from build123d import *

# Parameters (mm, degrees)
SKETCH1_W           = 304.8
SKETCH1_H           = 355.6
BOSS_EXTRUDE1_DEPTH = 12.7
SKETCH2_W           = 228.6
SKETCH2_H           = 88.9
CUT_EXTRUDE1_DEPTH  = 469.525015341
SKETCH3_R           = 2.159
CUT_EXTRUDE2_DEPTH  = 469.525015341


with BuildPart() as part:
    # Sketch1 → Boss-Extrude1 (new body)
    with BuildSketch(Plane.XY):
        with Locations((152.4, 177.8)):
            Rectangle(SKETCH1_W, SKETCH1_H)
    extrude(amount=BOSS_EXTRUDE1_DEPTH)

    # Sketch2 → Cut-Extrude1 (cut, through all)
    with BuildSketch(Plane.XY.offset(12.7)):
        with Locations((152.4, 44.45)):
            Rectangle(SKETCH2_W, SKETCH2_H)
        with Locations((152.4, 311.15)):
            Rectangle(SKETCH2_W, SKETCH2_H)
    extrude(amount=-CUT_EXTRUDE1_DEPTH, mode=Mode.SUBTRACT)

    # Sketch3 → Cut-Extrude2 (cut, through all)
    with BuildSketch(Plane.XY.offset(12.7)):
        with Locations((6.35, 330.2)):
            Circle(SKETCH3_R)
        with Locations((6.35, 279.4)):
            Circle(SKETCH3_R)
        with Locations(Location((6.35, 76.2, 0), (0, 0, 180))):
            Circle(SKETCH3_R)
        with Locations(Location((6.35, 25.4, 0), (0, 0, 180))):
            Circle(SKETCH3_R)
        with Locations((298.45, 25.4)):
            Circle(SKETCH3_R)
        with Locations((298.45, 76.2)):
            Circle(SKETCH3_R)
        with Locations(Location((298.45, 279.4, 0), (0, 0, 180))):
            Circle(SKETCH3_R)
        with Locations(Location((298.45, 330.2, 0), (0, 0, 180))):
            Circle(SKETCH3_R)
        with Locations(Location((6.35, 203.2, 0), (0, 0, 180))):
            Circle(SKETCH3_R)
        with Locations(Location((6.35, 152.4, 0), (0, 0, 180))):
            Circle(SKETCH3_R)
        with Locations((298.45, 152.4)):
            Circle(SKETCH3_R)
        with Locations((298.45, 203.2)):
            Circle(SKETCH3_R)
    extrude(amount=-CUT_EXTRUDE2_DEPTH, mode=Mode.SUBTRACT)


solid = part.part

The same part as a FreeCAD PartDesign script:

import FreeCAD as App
import Part
import Sketcher

V = App.Vector
Q = App.Units.Quantity

doc = App.newDocument("Part")
body = doc.addObject("PartDesign::Body", "Body")

# Sketch on XY plane
sketch1 = body.newObject("Sketcher::SketchObject", "Sketch")
sketch1.AttachmentSupport = (doc.getObject("XY_Plane"), [""])
sketch1.MapMode = "FlatFace"
sketch1.addGeometry([
    Part.LineSegment(V(0, 356, 0), V(0, 0, 0)),
    Part.LineSegment(V(0, 0, 0), V(305, 0, 0)),
    Part.LineSegment(V(305, 0, 0), V(305, 356, 0)),
    Part.LineSegment(V(305, 356, 0), V(0, 356, 0)),
], False)
sketch1.addConstraint([
    Sketcher.Constraint("Coincident", 0, 2, 1, 1),
    Sketcher.Constraint("Coincident", 1, 2, 2, 1),
    Sketcher.Constraint("Coincident", 2, 2, 3, 1),
    Sketcher.Constraint("Coincident", 3, 2, 0, 1),
    Sketcher.Constraint("Vertical", 0),
    Sketcher.Constraint("Horizontal", 1),
    Sketcher.Constraint("Vertical", 2),
    Sketcher.Constraint("Horizontal", 3),
    Sketcher.Constraint("Coincident", 0, 2, -1, 1),
    Sketcher.Constraint("DistanceX", 1, 1, 1, 2, Q("12 in")),
    Sketcher.Constraint("DistanceY", 0, 2, 0, 1, Q("14 in")),
])
pad1 = body.newObject("PartDesign::Pad", "Pad")
pad1.Profile = sketch1
pad1.Length = Q("0.5 in")

# Sketch on XY plane
sketch2 = body.newObject("Sketcher::SketchObject", "Sketch001")
sketch2.AttachmentSupport = (doc.getObject("XY_Plane"), [""])
sketch2.MapMode = "FlatFace"
sketch2.AttachmentOffset = App.Placement(V(0, 0, 0.5 * 25.4), App.Rotation())
sketch2.addGeometry([
    Part.LineSegment(V(38, 89, 0), V(38, 0, 0)),  # 0
    Part.LineSegment(V(38, 0, 0), V(267, 0, 0)),  # 1
    Part.LineSegment(V(267, 0, 0), V(267, 89, 0)),  # 2
    Part.LineSegment(V(267, 89, 0), V(38, 89, 0)),  # 3
    Part.LineSegment(V(38, 356, 0), V(38, 267, 0)),  # 4
    Part.LineSegment(V(38, 267, 0), V(267, 267, 0)),  # 5
    Part.LineSegment(V(267, 267, 0), V(267, 356, 0)),  # 6
    Part.LineSegment(V(267, 356, 0), V(38, 356, 0)),  # 7
], False)
sketch2.addConstraint([
    Sketcher.Constraint("Coincident", 0, 2, 1, 1),
    Sketcher.Constraint("Coincident", 1, 2, 2, 1),
    Sketcher.Constraint("Coincident", 2, 2, 3, 1),
    Sketcher.Constraint("Coincident", 3, 2, 0, 1),
    Sketcher.Constraint("Coincident", 4, 2, 5, 1),
    Sketcher.Constraint("Coincident", 5, 2, 6, 1),
    Sketcher.Constraint("Coincident", 6, 2, 7, 1),
    Sketcher.Constraint("Coincident", 7, 2, 4, 1),
    Sketcher.Constraint("Vertical", 0),
    Sketcher.Constraint("Horizontal", 1),
    Sketcher.Constraint("Vertical", 2),
    Sketcher.Constraint("Horizontal", 3),
    Sketcher.Constraint("Vertical", 4),
    Sketcher.Constraint("Horizontal", 5),
    Sketcher.Constraint("Vertical", 6),
    Sketcher.Constraint("Horizontal", 7),
    Sketcher.Constraint("PointOnObject", 0, 2, -1),
    Sketcher.Constraint("Vertical", 3, 2, 4, 2),
    Sketcher.Constraint("Vertical", 2, 2, 5, 2),
    Sketcher.Constraint("Equal", 2, 4),
    Sketcher.Constraint("DistanceX", 1, 1, 1, 2, Q("9 in")),
    Sketcher.Constraint("DistanceY", 0, 2, 0, 1, Q("3.5 in")),
    Sketcher.Constraint("DistanceY", -1, 1, 6, 2, Q("14 in")),
    Sketcher.Constraint("DistanceX", -1, 1, 0, 2, Q("1.5 in")),
])
pocket1 = body.newObject("PartDesign::Pocket", "Pocket")
pocket1.Profile = sketch2
pocket1.Type = "ThroughAll"

# Sketch on XY plane
sketch3 = body.newObject("Sketcher::SketchObject", "Sketch002")
sketch3.AttachmentSupport = (doc.getObject("XY_Plane"), [""])
sketch3.MapMode = "FlatFace"
sketch3.AttachmentOffset = App.Placement(V(0, 0, 0.5 * 25.4), App.Rotation())
sketch3.addGeometry([
    Part.Circle(V(6.3, 330.2, 0), V(0, 0, 1), 2.2),  # 0
    Part.Circle(V(6.3, 279.4, 0), V(0, 0, 1), 2.2),  # 1
    Part.Circle(V(6.3, 76.2, 0), V(0, 0, 1), 2.2),  # 2
    Part.Circle(V(6.3, 25.4, 0), V(0, 0, 1), 2.2),  # 3
    Part.Circle(V(298.4, 25.4, 0), V(0, 0, 1), 2.2),  # 4
    Part.Circle(V(298.4, 76.2, 0), V(0, 0, 1), 2.2),  # 5
    Part.Circle(V(298.4, 279.4, 0), V(0, 0, 1), 2.2),  # 6
    Part.Circle(V(298.4, 330.2, 0), V(0, 0, 1), 2.2),  # 7
    Part.Circle(V(6.3, 203.2, 0), V(0, 0, 1), 2.2),  # 8
    Part.Circle(V(6.3, 152.4, 0), V(0, 0, 1), 2.2),  # 9
    Part.Circle(V(298.4, 152.4, 0), V(0, 0, 1), 2.2),  # 10
    Part.Circle(V(298.4, 203.2, 0), V(0, 0, 1), 2.2),  # 11
], False)
sketch3.addConstraint([
    Sketcher.Constraint("Equal", 0, 1),
    Sketcher.Constraint("Equal", 1, 2),
    Sketcher.Constraint("Equal", 2, 3),
    Sketcher.Constraint("Equal", 3, 4),
    Sketcher.Constraint("Equal", 4, 5),
    Sketcher.Constraint("Equal", 5, 6),
    Sketcher.Constraint("Equal", 6, 7),
    Sketcher.Constraint("Equal", 7, 8),
    Sketcher.Constraint("Equal", 8, 9),
    Sketcher.Constraint("Equal", 9, 10),
    Sketcher.Constraint("Equal", 10, 11),
    Sketcher.Constraint("Horizontal", 3, 3, 4, 3),
    Sketcher.Constraint("Horizontal", 2, 3, 5, 3),
    Sketcher.Constraint("Horizontal", 1, 3, 6, 3),
    Sketcher.Constraint("Horizontal", 0, 3, 7, 3),
    Sketcher.Constraint("Horizontal", 9, 3, 10, 3),
    Sketcher.Constraint("Horizontal", 8, 3, 11, 3),
    Sketcher.Constraint("Vertical", 0, 3, 1, 3),
    Sketcher.Constraint("Vertical", 1, 3, 2, 3),
    Sketcher.Constraint("Vertical", 2, 3, 3, 3),
    Sketcher.Constraint("Vertical", 4, 3, 5, 3),
    Sketcher.Constraint("Vertical", 5, 3, 6, 3),
    Sketcher.Constraint("Vertical", 6, 3, 7, 3),
    Sketcher.Constraint("Vertical", 3, 3, 8, 3),
    Sketcher.Constraint("Vertical", 8, 3, 9, 3),
    Sketcher.Constraint("Vertical", 7, 3, 10, 3),
    Sketcher.Constraint("Vertical", 10, 3, 11, 3),
    Sketcher.Constraint("Diameter", 0, Q("0.17 in")),
    Sketcher.Constraint("DistanceY", -1, 1, 0, 3, Q("13 in")),
    Sketcher.Constraint("DistanceY", -1, 1, 1, 3, Q("11 in")),
    Sketcher.Constraint("DistanceY", -1, 1, 2, 3, Q("3 in")),
    Sketcher.Constraint("DistanceY", -1, 1, 3, 3, Q("1 in")),
    Sketcher.Constraint("DistanceY", -1, 1, 8, 3, Q("8 in")),
    Sketcher.Constraint("DistanceY", -1, 1, 9, 3, Q("6 in")),
    Sketcher.Constraint("DistanceX", 3, 3, 4, 3, Q("11.5 in")),
    Sketcher.Constraint("DistanceX", -1, 1, 0, 3, Q("0.25 in")),
])
pocket2 = body.newObject("PartDesign::Pocket", "Pocket001")
pocket2.Profile = sketch3
pocket2.Type = "ThroughAll"

doc.recompute()
